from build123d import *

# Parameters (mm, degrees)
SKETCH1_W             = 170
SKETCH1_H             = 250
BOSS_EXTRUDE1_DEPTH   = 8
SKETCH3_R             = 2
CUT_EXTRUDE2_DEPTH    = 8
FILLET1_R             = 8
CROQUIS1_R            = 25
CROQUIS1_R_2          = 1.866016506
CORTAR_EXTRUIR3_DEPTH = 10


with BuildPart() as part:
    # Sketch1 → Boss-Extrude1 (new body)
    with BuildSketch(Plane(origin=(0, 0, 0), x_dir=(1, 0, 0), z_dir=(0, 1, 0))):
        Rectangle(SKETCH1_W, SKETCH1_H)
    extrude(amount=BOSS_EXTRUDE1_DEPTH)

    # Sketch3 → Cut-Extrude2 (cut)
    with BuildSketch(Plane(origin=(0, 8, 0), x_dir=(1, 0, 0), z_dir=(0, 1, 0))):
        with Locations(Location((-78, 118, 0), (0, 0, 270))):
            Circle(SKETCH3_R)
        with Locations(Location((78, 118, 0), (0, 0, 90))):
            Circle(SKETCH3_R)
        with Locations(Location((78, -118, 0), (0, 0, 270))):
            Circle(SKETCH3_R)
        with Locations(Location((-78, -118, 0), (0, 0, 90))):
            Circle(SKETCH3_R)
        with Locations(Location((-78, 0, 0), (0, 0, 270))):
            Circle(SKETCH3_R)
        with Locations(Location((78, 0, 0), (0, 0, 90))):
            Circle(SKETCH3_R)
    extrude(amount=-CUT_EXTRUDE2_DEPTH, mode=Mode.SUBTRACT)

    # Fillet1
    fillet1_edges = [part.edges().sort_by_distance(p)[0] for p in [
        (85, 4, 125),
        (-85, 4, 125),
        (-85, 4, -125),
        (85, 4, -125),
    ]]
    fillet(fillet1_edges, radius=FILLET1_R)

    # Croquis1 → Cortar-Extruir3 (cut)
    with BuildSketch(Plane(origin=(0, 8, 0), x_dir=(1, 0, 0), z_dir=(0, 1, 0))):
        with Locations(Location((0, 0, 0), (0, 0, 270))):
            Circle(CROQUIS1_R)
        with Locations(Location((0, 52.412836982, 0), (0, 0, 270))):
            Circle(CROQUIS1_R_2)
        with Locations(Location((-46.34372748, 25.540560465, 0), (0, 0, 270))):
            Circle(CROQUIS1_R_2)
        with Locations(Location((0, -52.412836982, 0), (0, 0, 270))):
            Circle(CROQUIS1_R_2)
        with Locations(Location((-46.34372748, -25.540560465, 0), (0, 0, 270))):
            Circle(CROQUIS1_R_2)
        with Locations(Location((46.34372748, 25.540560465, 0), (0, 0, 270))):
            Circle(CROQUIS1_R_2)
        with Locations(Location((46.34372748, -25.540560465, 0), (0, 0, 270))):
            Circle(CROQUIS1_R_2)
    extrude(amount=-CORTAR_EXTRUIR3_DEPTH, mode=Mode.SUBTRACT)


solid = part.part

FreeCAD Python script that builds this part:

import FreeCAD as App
import Part
import Sketcher

V = App.Vector


def edges_at(feature, points):
    """Names of the edges that pass closest to the given points."""
    edges = feature.Shape.Edges
    near = lambda p: min(range(len(edges)), key=lambda i: edges[i].distToShape(Part.Vertex(*p))[0])
    return sorted({f"Edge{near(p) + 1}" for p in points})

doc = App.newDocument("Part")
params = doc.addObject("Spreadsheet::Sheet", "Params")
for row, (alias, value) in enumerate([
    ("sketch1_width", "170 mm"),
    ("sketch1_height", "250 mm"),
    ("pad1_length", "8 mm"),
    ("sketch2_diameter", "4 mm"),
    ("pocket1_length", "8 mm"),
    ("fillet_radius", "8 mm"),
    ("sketch3_diameter", "50 mm"),
    ("pocket2_length", "10 mm"),
], start=1):
    params.set(f"A{row}", alias)
    params.set(f"B{row}", "=" + value)
    params.setAlias(f"B{row}", alias)

body = doc.addObject("PartDesign::Body", "Body")

# Sketch on XZ plane
sketch1 = body.newObject("Sketcher::SketchObject", "Sketch")
sketch1.AttachmentSupport = (doc.getObject("XZ_Plane"), [""])
sketch1.MapMode = "FlatFace"
sketch1.addGeometry([
    Part.LineSegment(V(-85, -125, 0), V(-85, 125, 0)),
    Part.LineSegment(V(-85, 125, 0), V(85, 125, 0)),
    Part.LineSegment(V(85, 125, 0), V(85, -125, 0)),
    Part.LineSegment(V(85, -125, 0), V(-85, -125, 0)),
], False)
sketch1.addConstraint([
    Sketcher.Constraint("Coincident", 0, 2, 1, 1),
    Sketcher.Constraint("Coincident", 1, 2, 2, 1),
    Sketcher.Constraint("Coincident", 2, 2, 3, 1),
    Sketcher.Constraint("Coincident", 3, 2, 0, 1),
    Sketcher.Constraint("Vertical", 0),
    Sketcher.Constraint("Horizontal", 1),
    Sketcher.Constraint("Vertical", 2),
    Sketcher.Constraint("Horizontal", 3),
    Sketcher.Constraint("Symmetric", 0, 2, 2, 2, -1, 1),
    Sketcher.Constraint("DistanceX", 1, 1, 1, 2, 170.0),
    Sketcher.Constraint("DistanceY", 0, 1, 0, 2, 250.0),
])
sketch1.setExpression("Constraints[9]", "Params.sketch1_width")
sketch1.setExpression("Constraints[10]", "Params.sketch1_height")
pad1 = body.newObject("PartDesign::Pad", "Pad")
pad1.Profile = sketch1
pad1.setExpression("Length", "Params.pad1_length")
pad1.Reversed = True

# Sketch on XZ plane
sketch2 = body.newObject("Sketcher::SketchObject", "Sketch001")
sketch2.AttachmentSupport = (doc.getObject("XZ_Plane"), [""])
sketch2.MapMode = "FlatFace"
sketch2.AttachmentOffset = App.Placement(V(0, 0, -8), App.Rotation())
sketch2.addGeometry([
    Part.Circle(V(-78, -118, 0), V(0, 0, 1), 2),  # 0
    Part.Circle(V(78, -118, 0), V(0, 0, 1), 2),  # 1
    Part.Circle(V(78, 118, 0), V(0, 0, 1), 2),  # 2
    Part.Circle(V(-78, 118, 0), V(0, 0, 1), 2),  # 3
    Part.Circle(V(-78, 0, 0), V(0, 0, 1), 2),  # 4
    Part.Circle(V(78, 0, 0), V(0, 0, 1), 2),  # 5
], False)
sketch2.addConstraint([
    Sketcher.Constraint("Equal", 0, 1),
    Sketcher.Constraint("Equal", 1, 2),
    Sketcher.Constraint("Equal", 2, 3),
    Sketcher.Constraint("Equal", 3, 4),
    Sketcher.Constraint("Equal", 4, 5),
    Sketcher.Constraint("Symmetric", 0, 3, 2, 3, -1, 1),
    Sketcher.Constraint("Symmetric", 1, 3, 3, 3, -1, 1),
    Sketcher.Constraint("Symmetric", 4, 3, 5, 3, -1, 1),
    Sketcher.Constraint("Symmetric", 0, 3, 1, 3, -2),
    Sketcher.Constraint("PointOnObject", 4, 3, -1),
    Sketcher.Constraint("Vertical", 3, 3, 4, 3),
    Sketcher.Constraint("Diameter", 0, 4.0),
    Sketcher.Constraint("DistanceX", 0, 3, -1, 1, 78.0),
    Sketcher.Constraint("DistanceY", 0, 3, -1, 1, 118.0),
])
sketch2.setExpression("Constraints[11]", "Params.sketch2_diameter")
pocket1 = body.newObject("PartDesign::Pocket", "Pocket")
pocket1.Profile = sketch2
pocket1.setExpression("Length", "Params.pocket1_length")
pocket1.Reversed = True
doc.recompute()

fillet = body.newObject("PartDesign::Fillet", "Fillet")
fillet.Base = (pocket1, edges_at(pocket1, [
    (85, 4, 125),
    (-85, 4, 125),
    (-85, 4, -125),
    (85, 4, -125),
]))
fillet.setExpression("Radius", "Params.fillet_radius")

# Sketch on XZ plane
sketch3 = body.newObject("Sketcher::SketchObject", "Sketch002")
sketch3.AttachmentSupport = (doc.getObject("XZ_Plane"), [""])
sketch3.MapMode = "FlatFace"
sketch3.AttachmentOffset = App.Placement(V(0, 0, -8), App.Rotation())
sketch3.addGeometry([
    Part.Circle(V(0, 0, 0), V(0, 0, 1), 25),  # 0
    Part.Circle(V(0, -52.4, 0), V(0, 0, 1), 1.9),  # 1
    Part.Circle(V(-46.3, -25.5, 0), V(0, 0, 1), 1.9),  # 2
    Part.Circle(V(0, 52.4, 0), V(0, 0, 1), 1.9),  # 3
    Part.Circle(V(-46.3, 25.5, 0), V(0, 0, 1), 1.9),  # 4
    Part.Circle(V(46.3, -25.5, 0), V(0, 0, 1), 1.9),  # 5
    Part.Circle(V(46.3, 25.5, 0), V(0, 0, 1), 1.9),  # 6
], False)
sketch3.addConstraint([
    Sketcher.Constraint("Coincident", 0, 3, -1, 1),
    Sketcher.Constraint("Equal", 1, 2),
    Sketcher.Constraint("Equal", 2, 3),
    Sketcher.Constraint("Equal", 3, 4),
    Sketcher.Constraint("Equal", 4, 5),
    Sketcher.Constraint("Equal", 5, 6),
    Sketcher.Constraint("Symmetric", 1, 3, 3, 3, -1, 1),
    Sketcher.Constraint("Symmetric", 4, 3, 5, 3, -1, 1),
    Sketcher.Constraint("Symmetric", 2, 3, 6, 3, -1, 1),
    Sketcher.Constraint("Symmetric", 2, 3, 5, 3, -2),
    Sketcher.Constraint("PointOnObject", 1, 3, -2),
    Sketcher.Constraint("Diameter", 0, 50.0),
    Sketcher.Constraint("Diameter", 1, 3.732033),
    Sketcher.Constraint("DistanceY", 2, 3, -1, 1, 25.54056),
    Sketcher.Constraint("DistanceY", 1, 3, -1, 1, 52.412837),
    Sketcher.Constraint("DistanceX", 2, 3, -1, 1, 46.343727),
])
sketch3.setExpression("Constraints[11]", "Params.sketch3_diameter")
pocket2 = body.newObject("PartDesign::Pocket", "Pocket001")
pocket2.Profile = sketch3
pocket2.setExpression("Length", "Params.pocket2_length")
pocket2.Reversed = True

doc.recompute()
